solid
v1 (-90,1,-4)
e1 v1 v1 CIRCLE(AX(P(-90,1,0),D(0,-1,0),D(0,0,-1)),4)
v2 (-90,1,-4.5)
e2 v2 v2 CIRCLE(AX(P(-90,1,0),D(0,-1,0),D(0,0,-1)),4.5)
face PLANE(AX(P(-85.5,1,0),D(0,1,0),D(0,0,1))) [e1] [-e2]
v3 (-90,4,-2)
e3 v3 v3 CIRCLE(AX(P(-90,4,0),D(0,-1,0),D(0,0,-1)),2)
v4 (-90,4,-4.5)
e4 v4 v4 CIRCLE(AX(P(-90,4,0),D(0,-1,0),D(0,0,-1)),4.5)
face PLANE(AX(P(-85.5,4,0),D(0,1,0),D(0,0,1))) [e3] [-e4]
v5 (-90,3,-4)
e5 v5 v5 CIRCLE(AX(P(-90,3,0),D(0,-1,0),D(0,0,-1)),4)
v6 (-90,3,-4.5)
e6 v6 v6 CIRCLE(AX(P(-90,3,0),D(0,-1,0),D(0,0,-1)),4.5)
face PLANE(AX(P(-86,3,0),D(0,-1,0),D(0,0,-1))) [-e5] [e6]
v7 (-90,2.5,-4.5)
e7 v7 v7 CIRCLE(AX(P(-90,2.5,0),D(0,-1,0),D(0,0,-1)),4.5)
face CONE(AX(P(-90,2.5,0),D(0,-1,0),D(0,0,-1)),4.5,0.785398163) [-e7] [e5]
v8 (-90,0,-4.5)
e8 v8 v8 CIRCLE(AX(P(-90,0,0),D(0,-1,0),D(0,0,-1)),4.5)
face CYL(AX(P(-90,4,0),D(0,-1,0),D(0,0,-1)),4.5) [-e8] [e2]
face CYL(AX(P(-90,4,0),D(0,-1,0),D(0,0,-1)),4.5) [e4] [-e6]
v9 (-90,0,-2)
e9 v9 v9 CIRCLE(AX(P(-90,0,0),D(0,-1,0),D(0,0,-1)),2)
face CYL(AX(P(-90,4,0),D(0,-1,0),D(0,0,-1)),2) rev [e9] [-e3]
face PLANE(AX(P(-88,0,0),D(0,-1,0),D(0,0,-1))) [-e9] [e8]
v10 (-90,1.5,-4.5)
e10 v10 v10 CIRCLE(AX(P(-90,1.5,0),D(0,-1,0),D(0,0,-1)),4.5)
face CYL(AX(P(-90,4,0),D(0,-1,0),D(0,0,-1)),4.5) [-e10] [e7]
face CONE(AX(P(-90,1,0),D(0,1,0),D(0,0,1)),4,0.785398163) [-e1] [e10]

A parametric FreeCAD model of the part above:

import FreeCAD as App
import Part
import Sketcher
Q = App.Units.Quantity


def add_polygon(sketch, points):
    """Adds a closed chain of lines whose ends are joined by coincident constraints."""
    first, n = sketch.GeometryCount, len(points)
    for a, b in zip(points, points[1:] + points[:1]):
        sketch.addGeometry(Part.LineSegment(App.Vector(*a, 0), App.Vector(*b, 0)), False)
    for i in range(n):
        sketch.addConstraint(Sketcher.Constraint("Coincident", first + i, 2, first + (i + 1) % n, 1))

doc = App.newDocument("Part")
body = doc.addObject("PartDesign::Body", "Body")

# Sketch on XY plane
sketch1 = body.newObject("Sketcher::SketchObject", "Sketch")
sketch1.AttachmentSupport = (doc.getObject("XY_Plane"), [""])
sketch1.MapMode = "FlatFace"
add_polygon(sketch1, [(-85.5, 4), (-88, 4), (-88, 0), (-85.5, 0), (-85.5, 1), (-86, 1), (-85.5, 1.5), (-85.5, 2.5), (-86, 3), (-85.5, 3)])  # lines 0-9
sketch1.addGeometry(Part.LineSegment(App.Vector(-90, 4, 0), App.Vector(-90, 0, 0)), True)  # axis
sketch1.addConstraint([
    Sketcher.Constraint("Horizontal", 0),
    Sketcher.Constraint("Vertical", 1),
    Sketcher.Constraint("Horizontal", 2),
    Sketcher.Constraint("Vertical", 3),
    Sketcher.Constraint("Horizontal", 4),
    Sketcher.Constraint("Vertical", 6),
    Sketcher.Constraint("Horizontal", 8),
    Sketcher.Constraint("Vertical", 9),
    Sketcher.Constraint("Vertical", 10),
    Sketcher.Constraint("PointOnObject", 1, 2, -1),
    Sketcher.Constraint("PointOnObject", 10, 2, -1),
    Sketcher.Constraint("Perpendicular", 5, 7),
    Sketcher.Constraint("Horizontal", 9, 2, 10, 1),
    Sketcher.Constraint("Vertical", 3, 2, 5, 2),
    Sketcher.Constraint("Vertical", 4, 2, 7, 2),
    Sketcher.Constraint("Vertical", 6, 2, 8, 2),
    Sketcher.Constraint("Equal", 3, 6),
    Sketcher.Constraint("Equal", 6, 9),
    Sketcher.Constraint("Equal", 5, 7),
    Sketcher.Constraint("DistanceY", 1, 2, 1, 1, Q("4 mm")),
    Sketcher.Constraint("DistanceY", 3, 1, 3, 2, Q("1 mm")),
    Sketcher.Constraint("DistanceX", 0, 2, 0, 1, Q("2.5 mm")),
    Sketcher.Constraint("DistanceX", 0, 2, -1, 1, Q("88 mm")),
    Sketcher.Constraint("DistanceX", 10, 1, -1, 1, Q("90 mm")),
])
revolution = body.newObject("PartDesign::Revolution", "Revolution")
revolution.Profile = sketch1
revolution.ReferenceAxis = (sketch1, ["Axis0"])
revolution.Angle = 360

doc.recompute()
